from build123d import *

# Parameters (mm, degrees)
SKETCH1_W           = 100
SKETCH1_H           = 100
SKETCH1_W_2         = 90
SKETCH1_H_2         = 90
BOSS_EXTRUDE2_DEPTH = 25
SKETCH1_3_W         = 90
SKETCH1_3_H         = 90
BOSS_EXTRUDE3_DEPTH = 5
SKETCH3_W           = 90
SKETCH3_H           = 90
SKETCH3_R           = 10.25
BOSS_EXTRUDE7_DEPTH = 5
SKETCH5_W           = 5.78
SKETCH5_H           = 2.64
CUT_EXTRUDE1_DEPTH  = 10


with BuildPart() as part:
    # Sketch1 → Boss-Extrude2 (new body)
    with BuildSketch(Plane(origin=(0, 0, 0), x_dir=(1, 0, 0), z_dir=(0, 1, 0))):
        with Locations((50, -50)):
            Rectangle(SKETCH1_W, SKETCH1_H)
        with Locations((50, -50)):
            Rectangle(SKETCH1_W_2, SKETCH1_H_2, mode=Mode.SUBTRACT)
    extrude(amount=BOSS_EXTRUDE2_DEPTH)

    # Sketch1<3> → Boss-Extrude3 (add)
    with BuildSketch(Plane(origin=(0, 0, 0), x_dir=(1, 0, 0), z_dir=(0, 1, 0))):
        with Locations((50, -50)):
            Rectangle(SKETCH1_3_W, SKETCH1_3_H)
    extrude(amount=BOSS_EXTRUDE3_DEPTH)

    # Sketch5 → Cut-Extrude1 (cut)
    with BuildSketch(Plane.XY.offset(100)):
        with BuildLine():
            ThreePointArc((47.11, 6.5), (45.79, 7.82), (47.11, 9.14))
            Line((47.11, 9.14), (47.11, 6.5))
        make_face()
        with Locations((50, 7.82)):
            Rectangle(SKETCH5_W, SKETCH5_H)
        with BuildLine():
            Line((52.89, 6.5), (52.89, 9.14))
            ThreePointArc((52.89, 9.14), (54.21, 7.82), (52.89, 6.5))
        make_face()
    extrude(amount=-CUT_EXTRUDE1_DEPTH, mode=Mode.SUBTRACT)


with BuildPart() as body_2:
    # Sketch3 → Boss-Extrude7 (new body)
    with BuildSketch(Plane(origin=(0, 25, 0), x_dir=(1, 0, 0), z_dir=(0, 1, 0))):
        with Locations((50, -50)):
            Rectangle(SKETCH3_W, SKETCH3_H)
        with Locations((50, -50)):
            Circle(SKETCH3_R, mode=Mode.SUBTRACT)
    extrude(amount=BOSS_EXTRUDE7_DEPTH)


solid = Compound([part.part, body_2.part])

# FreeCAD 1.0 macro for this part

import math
import FreeCAD as App
import Part
import Sketcher

V = App.Vector

doc = App.newDocument("Part")
body = doc.addObject("PartDesign::Body", "Body")

# Sketch on XZ plane
sketch1 = doc.addObject("Sketcher::SketchObject", "Sketch")
body.addObject(sketch1)
sketch1.AttachmentSupport = (doc.XZ_Plane, [""])
sketch1.MapMode = "FlatFace"
sketch1.addGeometry(Part.LineSegment(V(0, 0, 0), V(0, 100, 0)), False)
sketch1.addGeometry(Part.LineSegment(V(0, 100, 0), V(100, 100, 0)), False)
sketch1.addGeometry(Part.LineSegment(V(100, 100, 0), V(100, 0, 0)), False)
sketch1.addGeometry(Part.LineSegment(V(100, 0, 0), V(0, 0, 0)), False)
sketch1.addGeometry(Part.LineSegment(V(95, 95, 0), V(5, 95, 0)), False)
sketch1.addGeometry(Part.LineSegment(V(5, 95, 0), V(5, 5, 0)), False)
sketch1.addGeometry(Part.LineSegment(V(5, 5, 0), V(95, 5, 0)), False)
sketch1.addGeometry(Part.LineSegment(V(95, 5, 0), V(95, 95, 0)), False)
sketch1.addConstraint(Sketcher.Constraint("Coincident", 0, 2, 1, 1))
sketch1.addConstraint(Sketcher.Constraint("Coincident", 1, 2, 2, 1))
sketch1.addConstraint(Sketcher.Constraint("Coincident", 2, 2, 3, 1))
sketch1.addConstraint(Sketcher.Constraint("Coincident", 3, 2, 0, 1))
sketch1.addConstraint(Sketcher.Constraint("Coincident", 4, 2, 5, 1))
sketch1.addConstraint(Sketcher.Constraint("Coincident", 5, 2, 6, 1))
sketch1.addConstraint(Sketcher.Constraint("Coincident", 6, 2, 7, 1))
sketch1.addConstraint(Sketcher.Constraint("Coincident", 7, 2, 4, 1))
sketch1.addConstraint(Sketcher.Constraint("Vertical", 0))
sketch1.addConstraint(Sketcher.Constraint("Horizontal", 1))
sketch1.addConstraint(Sketcher.Constraint("Vertical", 2))
sketch1.addConstraint(Sketcher.Constraint("Horizontal", 3))
sketch1.addConstraint(Sketcher.Constraint("Horizontal", 4))
sketch1.addConstraint(Sketcher.Constraint("Vertical", 5))
sketch1.addConstraint(Sketcher.Constraint("Horizontal", 6))
sketch1.addConstraint(Sketcher.Constraint("Vertical", 7))
sketch1.addConstraint(Sketcher.Constraint("Coincident", 3, 2, -1, 1))
sketch1.addConstraint(Sketcher.Constraint("Equal", 3, 0))
sketch1.addConstraint(Sketcher.Constraint("Equal", 6, 5))
sketch1.addConstraint(Sketcher.Constraint("DistanceX", 1, 1, 1, 2, 100.0))
sketch1.addConstraint(Sketcher.Constraint("DistanceX", 4, 2, 4, 1, 90.0))
sketch1.addConstraint(Sketcher.Constraint("DistanceX", -1, 1, 4, 2, 5.0))
sketch1.addConstraint(Sketcher.Constraint("DistanceY", -1, 1, 4, 2, 95.0))
pad1 = doc.addObject("PartDesign::Pad", "Pad")
body.addObject(pad1)
pad1.Profile = sketch1
pad1.Length = 25
pad1.Reversed = True

# Sketch on XZ plane
sketch2 = doc.addObject("Sketcher::SketchObject", "Sketch001")
body.addObject(sketch2)
sketch2.AttachmentSupport = (doc.XZ_Plane, [""])
sketch2.MapMode = "FlatFace"
sketch2.addGeometry(Part.LineSegment(V(5, 5, 0), V(5, 95, 0)), False)
sketch2.addGeometry(Part.LineSegment(V(5, 95, 0), V(95, 95, 0)), False)
sketch2.addGeometry(Part.LineSegment(V(95, 95, 0), V(95, 5, 0)), False)
sketch2.addGeometry(Part.LineSegment(V(95, 5, 0), V(5, 5, 0)), False)
sketch2.addConstraint(Sketcher.Constraint("Coincident", 0, 2, 1, 1))
sketch2.addConstraint(Sketcher.Constraint("Coincident", 1, 2, 2, 1))
sketch2.addConstraint(Sketcher.Constraint("Coincident", 2, 2, 3, 1))
sketch2.addConstraint(Sketcher.Constraint("Coincident", 3, 2, 0, 1))
sketch2.addConstraint(Sketcher.Constraint("Vertical", 0))
sketch2.addConstraint(Sketcher.Constraint("Horizontal", 1))
sketch2.addConstraint(Sketcher.Constraint("Vertical", 2))
sketch2.addConstraint(Sketcher.Constraint("Horizontal", 3))
sketch2.addConstraint(Sketcher.Constraint("Equal", 3, 0))
sketch2.addConstraint(Sketcher.Constraint("DistanceX", 1, 1, 1, 2, 90.0))
sketch2.addConstraint(Sketcher.Constraint("DistanceX", -1, 1, 0, 2, 5.0))
sketch2.addConstraint(Sketcher.Constraint("DistanceY", -1, 1, 0, 2, 95.0))
pad2 = doc.addObject("PartDesign::Pad", "Pad001")
body.addObject(pad2)
pad2.Profile = sketch2
pad2.Length = 5
pad2.Reversed = True

# Sketch on XY plane
sketch3 = doc.addObject("Sketcher::SketchObject", "Sketch002")
body.addObject(sketch3)
sketch3.AttachmentSupport = (doc.XY_Plane, [""])
sketch3.MapMode = "FlatFace"
sketch3.AttachmentOffset = App.Placement(V(0, 0, 100), App.Rotation())
sketch3.addGeometry(Part.ArcOfCircle(Part.Circle(V(47.1, 7.8, 0), V(0, 0, 1), 1.3), math.radians(90), math.radians(270)), False)
sketch3.addGeometry(Part.LineSegment(V(47.1, 6.5, 0), V(52.9, 6.5, 0)), False)
sketch3.addGeometry(Part.ArcOfCircle(Part.Circle(V(52.9, 7.8, 0), V(0, 0, 1), 1.3), math.radians(-90), math.radians(90)), False)
sketch3.addGeometry(Part.LineSegment(V(52.9, 9.1, 0), V(47.1, 9.1, 0)), False)
sketch3.addConstraint(Sketcher.Constraint("Tangent", 0, 2, 1, 1))
sketch3.addConstraint(Sketcher.Constraint("Tangent", 1, 2, 2, 1))
sketch3.addConstraint(Sketcher.Constraint("Tangent", 2, 2, 3, 1))
sketch3.addConstraint(Sketcher.Constraint("Tangent", 3, 2, 0, 1))
sketch3.addConstraint(Sketcher.Constraint("Horizontal", 1))
sketch3.addConstraint(Sketcher.Constraint("Horizontal", 3))
sketch3.addConstraint(Sketcher.Constraint("Radius", 0, 1.32))
sketch3.addConstraint(Sketcher.Constraint("DistanceX", 1, 1, 1, 2, 5.78))
sketch3.addConstraint(Sketcher.Constraint("DistanceY", -1, 1, 0, 2, 6.5))
sketch3.addConstraint(Sketcher.Constraint("DistanceX", -1, 1, 0, 3, 47.11))
pocket1 = doc.addObject("PartDesign::Pocket", "Pocket")
body.addObject(pocket1)
pocket1.Profile = sketch3
pocket1.Length = 10
body2 = doc.addObject("PartDesign::Body", "Body001")

# Sketch on XZ plane
sketch4 = doc.addObject("Sketcher::SketchObject", "Sketch003")
body2.addObject(sketch4)
sketch4.AttachmentSupport = (doc.getObject("XZ_Plane001"), [""])
sketch4.MapMode = "FlatFace"
sketch4.AttachmentOffset = App.Placement(V(0, 0, -25), App.Rotation())
sketch4.addGeometry(Part.LineSegment(V(5, 5, 0), V(5, 95, 0)), False)
sketch4.addGeometry(Part.LineSegment(V(5, 95, 0), V(95, 95, 0)), False)
sketch4.addGeometry(Part.LineSegment(V(95, 95, 0), V(95, 5, 0)), False)
sketch4.addGeometry(Part.LineSegment(V(95, 5, 0), V(5, 5, 0)), False)
sketch4.addGeometry(Part.Circle(V(50, 50, 0), V(0, 0, 1), 10), False)
sketch4.addConstraint(Sketcher.Constraint("Coincident", 0, 2, 1, 1))
sketch4.addConstraint(Sketcher.Constraint("Coincident", 1, 2, 2, 1))
sketch4.addConstraint(Sketcher.Constraint("Coincident", 2, 2, 3, 1))
sketch4.addConstraint(Sketcher.Constraint("Coincident", 3, 2, 0, 1))
sketch4.addConstraint(Sketcher.Constraint("Vertical", 0))
sketch4.addConstraint(Sketcher.Constraint("Horizontal", 1))
sketch4.addConstraint(Sketcher.Constraint("Vertical", 2))
sketch4.addConstraint(Sketcher.Constraint("Horizontal", 3))
sketch4.addConstraint(Sketcher.Constraint("Equal", 3, 0))
sketch4.addConstraint(Sketcher.Constraint("Diameter", 4, 20.5))
sketch4.addConstraint(Sketcher.Constraint("DistanceX", 1, 1, 1, 2, 90.0))
sketch4.addConstraint(Sketcher.Constraint("DistanceX", -1, 1, 4, 3, 50.0))
sketch4.addConstraint(Sketcher.Constraint("DistanceY", -1, 1, 4, 3, 50.0))
sketch4.addConstraint(Sketcher.Constraint("DistanceX", -1, 1, 0, 2, 5.0))
sketch4.addConstraint(Sketcher.Constraint("DistanceY", -1, 1, 0, 2, 95.0))
pad3 = doc.addObject("PartDesign::Pad", "Pad002")
body2.addObject(pad3)
pad3.Profile = sketch4
pad3.Length = 5
pad3.Reversed = True

doc.recompute()
